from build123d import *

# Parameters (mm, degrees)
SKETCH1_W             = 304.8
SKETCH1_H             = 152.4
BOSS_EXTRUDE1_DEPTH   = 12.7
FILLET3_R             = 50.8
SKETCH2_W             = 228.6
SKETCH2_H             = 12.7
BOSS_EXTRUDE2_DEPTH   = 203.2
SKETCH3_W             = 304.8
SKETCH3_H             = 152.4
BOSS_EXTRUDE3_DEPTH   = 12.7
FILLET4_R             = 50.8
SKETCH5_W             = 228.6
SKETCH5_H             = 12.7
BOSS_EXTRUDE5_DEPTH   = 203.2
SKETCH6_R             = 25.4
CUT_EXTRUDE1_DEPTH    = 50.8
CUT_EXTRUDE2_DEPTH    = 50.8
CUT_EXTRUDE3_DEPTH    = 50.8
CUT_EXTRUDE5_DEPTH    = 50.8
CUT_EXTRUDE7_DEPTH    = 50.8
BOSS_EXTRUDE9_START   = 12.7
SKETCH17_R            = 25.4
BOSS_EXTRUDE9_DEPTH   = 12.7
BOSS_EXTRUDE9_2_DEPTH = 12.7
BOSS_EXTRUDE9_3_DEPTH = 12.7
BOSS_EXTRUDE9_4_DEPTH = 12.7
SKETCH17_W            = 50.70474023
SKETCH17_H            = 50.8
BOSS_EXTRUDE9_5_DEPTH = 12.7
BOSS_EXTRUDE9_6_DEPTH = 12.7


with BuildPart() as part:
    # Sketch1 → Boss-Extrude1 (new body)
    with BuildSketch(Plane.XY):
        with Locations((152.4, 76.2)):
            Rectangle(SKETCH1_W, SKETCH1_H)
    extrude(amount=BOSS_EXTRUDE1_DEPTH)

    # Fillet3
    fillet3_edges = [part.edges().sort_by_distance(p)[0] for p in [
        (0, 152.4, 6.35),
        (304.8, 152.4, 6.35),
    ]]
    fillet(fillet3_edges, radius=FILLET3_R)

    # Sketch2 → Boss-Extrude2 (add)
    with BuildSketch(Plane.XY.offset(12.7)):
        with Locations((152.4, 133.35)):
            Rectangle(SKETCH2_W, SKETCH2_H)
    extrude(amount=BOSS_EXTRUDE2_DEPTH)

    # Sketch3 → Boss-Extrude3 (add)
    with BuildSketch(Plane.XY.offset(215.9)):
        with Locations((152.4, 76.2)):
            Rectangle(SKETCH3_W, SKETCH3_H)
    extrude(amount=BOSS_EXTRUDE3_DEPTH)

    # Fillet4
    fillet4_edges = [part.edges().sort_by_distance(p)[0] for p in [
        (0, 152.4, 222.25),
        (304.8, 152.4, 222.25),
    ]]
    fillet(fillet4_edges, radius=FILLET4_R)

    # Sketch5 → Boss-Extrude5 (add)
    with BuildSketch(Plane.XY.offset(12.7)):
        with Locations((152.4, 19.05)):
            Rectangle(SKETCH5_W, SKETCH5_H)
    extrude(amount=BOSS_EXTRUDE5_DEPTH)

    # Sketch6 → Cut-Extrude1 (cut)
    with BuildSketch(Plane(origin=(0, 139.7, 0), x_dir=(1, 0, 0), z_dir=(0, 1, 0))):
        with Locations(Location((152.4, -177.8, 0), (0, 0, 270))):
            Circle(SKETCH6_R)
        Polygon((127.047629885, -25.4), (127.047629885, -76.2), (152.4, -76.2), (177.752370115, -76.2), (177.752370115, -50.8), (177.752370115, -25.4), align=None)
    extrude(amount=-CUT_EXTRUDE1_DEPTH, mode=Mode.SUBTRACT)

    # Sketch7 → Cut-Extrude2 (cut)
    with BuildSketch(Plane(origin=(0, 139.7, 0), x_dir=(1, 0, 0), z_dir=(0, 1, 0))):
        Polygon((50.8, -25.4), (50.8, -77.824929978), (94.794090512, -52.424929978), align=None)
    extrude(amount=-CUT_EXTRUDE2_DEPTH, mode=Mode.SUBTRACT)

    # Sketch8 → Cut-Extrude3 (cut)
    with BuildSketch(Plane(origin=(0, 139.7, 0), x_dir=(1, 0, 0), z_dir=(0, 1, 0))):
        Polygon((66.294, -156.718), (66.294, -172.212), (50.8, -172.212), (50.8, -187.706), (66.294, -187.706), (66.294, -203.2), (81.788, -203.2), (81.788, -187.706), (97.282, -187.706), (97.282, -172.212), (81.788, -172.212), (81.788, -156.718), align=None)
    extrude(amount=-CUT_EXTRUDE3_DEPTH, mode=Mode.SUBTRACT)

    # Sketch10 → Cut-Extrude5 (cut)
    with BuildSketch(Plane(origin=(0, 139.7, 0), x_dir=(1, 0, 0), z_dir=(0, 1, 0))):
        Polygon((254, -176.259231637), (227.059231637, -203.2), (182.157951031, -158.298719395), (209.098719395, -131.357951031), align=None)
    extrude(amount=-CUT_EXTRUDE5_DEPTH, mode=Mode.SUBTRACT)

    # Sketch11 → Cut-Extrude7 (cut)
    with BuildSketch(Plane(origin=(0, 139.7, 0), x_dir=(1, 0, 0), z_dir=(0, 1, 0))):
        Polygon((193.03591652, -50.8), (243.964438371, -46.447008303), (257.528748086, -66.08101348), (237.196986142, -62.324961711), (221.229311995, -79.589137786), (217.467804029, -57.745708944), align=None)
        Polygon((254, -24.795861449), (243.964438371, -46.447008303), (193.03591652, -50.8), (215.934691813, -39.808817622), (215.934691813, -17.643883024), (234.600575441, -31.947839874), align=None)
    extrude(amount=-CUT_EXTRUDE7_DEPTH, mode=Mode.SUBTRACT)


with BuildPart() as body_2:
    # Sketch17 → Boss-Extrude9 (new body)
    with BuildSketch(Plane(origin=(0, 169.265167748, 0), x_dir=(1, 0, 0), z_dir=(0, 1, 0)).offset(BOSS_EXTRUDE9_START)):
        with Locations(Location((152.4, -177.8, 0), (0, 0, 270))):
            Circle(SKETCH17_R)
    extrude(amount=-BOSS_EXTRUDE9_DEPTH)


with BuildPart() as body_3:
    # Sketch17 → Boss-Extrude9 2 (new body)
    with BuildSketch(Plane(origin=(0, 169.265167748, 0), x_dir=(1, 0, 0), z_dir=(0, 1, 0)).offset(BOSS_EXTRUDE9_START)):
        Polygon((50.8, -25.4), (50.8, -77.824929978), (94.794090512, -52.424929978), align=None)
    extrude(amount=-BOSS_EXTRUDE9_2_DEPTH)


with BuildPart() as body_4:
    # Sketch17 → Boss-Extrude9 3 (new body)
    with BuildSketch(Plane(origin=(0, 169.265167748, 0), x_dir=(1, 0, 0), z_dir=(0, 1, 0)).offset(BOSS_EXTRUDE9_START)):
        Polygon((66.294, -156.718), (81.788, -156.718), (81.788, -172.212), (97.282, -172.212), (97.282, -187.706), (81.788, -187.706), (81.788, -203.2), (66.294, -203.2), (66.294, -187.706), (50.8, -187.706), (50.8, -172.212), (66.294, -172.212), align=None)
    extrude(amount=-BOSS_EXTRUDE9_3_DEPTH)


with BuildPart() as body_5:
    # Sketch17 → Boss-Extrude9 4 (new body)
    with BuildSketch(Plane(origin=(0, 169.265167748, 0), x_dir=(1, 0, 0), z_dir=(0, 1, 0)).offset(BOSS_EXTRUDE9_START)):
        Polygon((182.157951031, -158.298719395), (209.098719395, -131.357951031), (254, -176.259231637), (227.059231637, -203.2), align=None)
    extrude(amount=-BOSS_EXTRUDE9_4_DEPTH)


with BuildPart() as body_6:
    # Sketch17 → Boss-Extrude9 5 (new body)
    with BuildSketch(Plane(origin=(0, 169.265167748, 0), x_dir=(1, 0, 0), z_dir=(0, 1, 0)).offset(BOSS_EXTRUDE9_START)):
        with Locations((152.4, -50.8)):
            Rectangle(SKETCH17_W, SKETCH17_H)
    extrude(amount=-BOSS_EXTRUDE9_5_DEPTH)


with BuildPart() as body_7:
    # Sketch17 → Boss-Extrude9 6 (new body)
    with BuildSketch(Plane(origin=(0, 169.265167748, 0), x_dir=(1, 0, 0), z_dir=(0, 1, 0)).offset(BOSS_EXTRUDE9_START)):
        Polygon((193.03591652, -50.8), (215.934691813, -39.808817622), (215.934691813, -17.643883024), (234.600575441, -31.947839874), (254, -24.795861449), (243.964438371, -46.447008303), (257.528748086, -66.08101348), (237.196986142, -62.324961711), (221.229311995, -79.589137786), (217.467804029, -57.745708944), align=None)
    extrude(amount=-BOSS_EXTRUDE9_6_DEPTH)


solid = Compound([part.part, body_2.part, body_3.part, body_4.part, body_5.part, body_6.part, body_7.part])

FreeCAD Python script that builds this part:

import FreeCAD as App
import Part
import Sketcher
Q = App.Units.Quantity


def edges_at(feature, points):
    """Names of the edges that pass closest to the given points."""
    edges = feature.Shape.Edges
    near = lambda p: min(range(len(edges)), key=lambda i: edges[i].distToShape(Part.Vertex(*p))[0])
    return sorted({f"Edge{near(p) + 1}" for p in points})

doc = App.newDocument("Part")
body = doc.addObject("PartDesign::Body", "Body")

sketch1 = doc.addObject("Sketcher::SketchObject", "Sketch")
body.addObject(sketch1)
sketch1.AttachmentSupport = (doc.XY_Plane, [""])
sketch1.MapMode = "FlatFace"
sketch1.addGeometry([
    Part.LineSegment(App.Vector(0, 152, 0), App.Vector(0, 0, 0)),
    Part.LineSegment(App.Vector(0, 0, 0), App.Vector(305, 0, 0)),
    Part.LineSegment(App.Vector(305, 0, 0), App.Vector(305, 152, 0)),
    Part.LineSegment(App.Vector(305, 152, 0), App.Vector(0, 152, 0)),
], False)
sketch1.addConstraint([
    Sketcher.Constraint("Coincident", 0, 2, 1, 1),
    Sketcher.Constraint("Coincident", 1, 2, 2, 1),
    Sketcher.Constraint("Coincident", 2, 2, 3, 1),
    Sketcher.Constraint("Coincident", 3, 2, 0, 1),
    Sketcher.Constraint("Vertical", 0),
    Sketcher.Constraint("Horizontal", 1),
    Sketcher.Constraint("Vertical", 2),
    Sketcher.Constraint("Horizontal", 3),
    Sketcher.Constraint("Coincident", 0, 2, -1, 1),
    Sketcher.Constraint("DistanceX", 1, 1, 1, 2, Q("12 in")),
    Sketcher.Constraint("DistanceY", 0, 2, 0, 1, Q("6 in")),
])
pad1 = doc.addObject("PartDesign::Pad", "Pad")
body.addObject(pad1)
pad1.Profile = sketch1
pad1.Length = Q("0.5 in")
doc.recompute()

fillet = doc.addObject("PartDesign::Fillet", "Fillet")
body.addObject(fillet)
fillet.Base = (pad1, edges_at(pad1, [(0, 152.4, 6.35), (304.8, 152.4, 6.35)]))
fillet.Radius = Q("2 in")

sketch2 = doc.addObject("Sketcher::SketchObject", "Sketch001")
body.addObject(sketch2)
sketch2.AttachmentSupport = (doc.XY_Plane, [""])
sketch2.MapMode = "FlatFace"
sketch2.AttachmentOffset = App.Placement(App.Vector(0, 0, 0.5 * 25.4), App.Rotation())
sketch2.addGeometry([
    Part.LineSegment(App.Vector(38, 140, 0), App.Vector(38, 127, 0)),
    Part.LineSegment(App.Vector(38, 127, 0), App.Vector(267, 127, 0)),
    Part.LineSegment(App.Vector(267, 127, 0), App.Vector(267, 140, 0)),
    Part.LineSegment(App.Vector(267, 140, 0), App.Vector(38, 140, 0)),
], False)
sketch2.addConstraint([
    Sketcher.Constraint("Coincident", 0, 2, 1, 1),
    Sketcher.Constraint("Coincident", 1, 2, 2, 1),
    Sketcher.Constraint("Coincident", 2, 2, 3, 1),
    Sketcher.Constraint("Coincident", 3, 2, 0, 1),
    Sketcher.Constraint("Vertical", 0),
    Sketcher.Constraint("Horizontal", 1),
    Sketcher.Constraint("Vertical", 2),
    Sketcher.Constraint("Horizontal", 3),
    Sketcher.Constraint("DistanceX", 1, 1, 1, 2, Q("9 in")),
    Sketcher.Constraint("DistanceY", 0, 2, 0, 1, Q("0.5 in")),
    Sketcher.Constraint("DistanceY", -1, 1, 0, 2, Q("5 in")),
    Sketcher.Constraint("DistanceX", -1, 1, 0, 2, Q("1.5 in")),
])
pad2 = doc.addObject("PartDesign::Pad", "Pad001")
body.addObject(pad2)
pad2.Profile = sketch2
pad2.Length = Q("8 in")

sketch3 = doc.addObject("Sketcher::SketchObject", "Sketch002")
body.addObject(sketch3)
sketch3.AttachmentSupport = (doc.XY_Plane, [""])
sketch3.MapMode = "FlatFace"
sketch3.AttachmentOffset = App.Placement(App.Vector(0, 0, 8.5 * 25.4), App.Rotation())
sketch3.addGeometry([
    Part.LineSegment(App.Vector(0, 152, 0), App.Vector(0, 0, 0)),
    Part.LineSegment(App.Vector(0, 0, 0), App.Vector(305, 0, 0)),
    Part.LineSegment(App.Vector(305, 0, 0), App.Vector(305, 152, 0)),
    Part.LineSegment(App.Vector(305, 152, 0), App.Vector(0, 152, 0)),
], False)
sketch3.addConstraint([
    Sketcher.Constraint("Coincident", 0, 2, 1, 1),
    Sketcher.Constraint("Coincident", 1, 2, 2, 1),
    Sketcher.Constraint("Coincident", 2, 2, 3, 1),
    Sketcher.Constraint("Coincident", 3, 2, 0, 1),
    Sketcher.Constraint("Vertical", 0),
    Sketcher.Constraint("Horizontal", 1),
    Sketcher.Constraint("Vertical", 2),
    Sketcher.Constraint("Horizontal", 3),
    Sketcher.Constraint("Coincident", 0, 2, -1, 1),
    Sketcher.Constraint("DistanceX", 1, 1, 1, 2, Q("12 in")),
    Sketcher.Constraint("DistanceY", 0, 2, 0, 1, Q("6 in")),
])
pad3 = doc.addObject("PartDesign::Pad", "Pad002")
body.addObject(pad3)
pad3.Profile = sketch3
pad3.Length = Q("0.5 in")
doc.recompute()

fillet2 = doc.addObject("PartDesign::Fillet", "Fillet001")
body.addObject(fillet2)
fillet2.Base = (pad3, edges_at(pad3, [(0, 152.4, 222.25), (304.8, 152.4, 222.25)]))
fillet2.Radius = Q("2 in")

sketch4 = doc.addObject("Sketcher::SketchObject", "Sketch003")
body.addObject(sketch4)
sketch4.AttachmentSupport = (doc.XY_Plane, [""])
sketch4.MapMode = "FlatFace"
sketch4.AttachmentOffset = App.Placement(App.Vector(0, 0, 0.5 * 25.4), App.Rotation())
sketch4.addGeometry([
    Part.LineSegment(App.Vector(38, 25, 0), App.Vector(38, 13, 0)),
    Part.LineSegment(App.Vector(38, 13, 0), App.Vector(267, 13, 0)),
    Part.LineSegment(App.Vector(267, 13, 0), App.Vector(267, 25, 0)),
    Part.LineSegment(App.Vector(267, 25, 0), App.Vector(38, 25, 0)),
], False)
sketch4.addConstraint([
    Sketcher.Constraint("Coincident", 0, 2, 1, 1),
    Sketcher.Constraint("Coincident", 1, 2, 2, 1),
    Sketcher.Constraint("Coincident", 2, 2, 3, 1),
    Sketcher.Constraint("Coincident", 3, 2, 0, 1),
    Sketcher.Constraint("Vertical", 0),
    Sketcher.Constraint("Horizontal", 1),
    Sketcher.Constraint("Vertical", 2),
    Sketcher.Constraint("Horizontal", 3),
    Sketcher.Constraint("DistanceX", 1, 1, 1, 2, Q("9 in")),
    Sketcher.Constraint("DistanceY", 0, 2, 0, 1, Q("0.5 in")),
    Sketcher.Constraint("DistanceY", -1, 1, 2, 2, Q("1 in")),
    Sketcher.Constraint("DistanceX", -1, 1, 0, 2, Q("1.5 in")),
])
pad4 = doc.addObject("PartDesign::Pad", "Pad003")
body.addObject(pad4)
pad4.Profile = sketch4
pad4.Length = Q("8 in")

sketch5 = doc.addObject("Sketcher::SketchObject", "Sketch004")
body.addObject(sketch5)
sketch5.AttachmentSupport = (doc.XZ_Plane, [""])
sketch5.MapMode = "FlatFace"
sketch5.AttachmentOffset = App.Placement(App.Vector(0, 0, -5.5 * 25.4), App.Rotation())
sketch5.addGeometry([
    Part.Circle(App.Vector(152, 178, 0), App.Vector(0, 0, 1), 25),
    Part.LineSegment(App.Vector(127, 25, 0), App.Vector(127, 76, 0)),
    Part.LineSegment(App.Vector(127, 76, 0), App.Vector(178, 76, 0)),
    Part.LineSegment(App.Vector(178, 76, 0), App.Vector(178, 25, 0)),
    Part.LineSegment(App.Vector(178, 25, 0), App.Vector(127, 25, 0)),
], False)
sketch5.addConstraint([
    Sketcher.Constraint("Coincident", 1, 2, 2, 1),
    Sketcher.Constraint("Coincident", 2, 2, 3, 1),
    Sketcher.Constraint("Coincident", 3, 2, 4, 1),
    Sketcher.Constraint("Coincident", 4, 2, 1, 1),
    Sketcher.Constraint("Vertical", 1),
    Sketcher.Constraint("Horizontal", 2),
    Sketcher.Constraint("Vertical", 3),
    Sketcher.Constraint("Horizontal", 4),
    Sketcher.Constraint("Diameter", 0, Q("2 in")),
    Sketcher.Constraint("DistanceY", 1, 1, 1, 2, Q("2 in")),
    Sketcher.Constraint("DistanceX", -1, 1, 0, 3, Q("6 in")),
    Sketcher.Constraint("DistanceY", -1, 1, 0, 3, Q("7 in")),
    Sketcher.Constraint("DistanceY", -1, 1, 1, 2, Q("3 in")),
    Sketcher.Constraint("DistanceX", 2, 1, 2, 2, Q("50.70474 mm")),
    Sketcher.Constraint("DistanceX", -1, 1, 1, 2, Q("127.04763 mm")),
])
pocket1 = doc.addObject("PartDesign::Pocket", "Pocket")
body.addObject(pocket1)
pocket1.Profile = sketch5
pocket1.Length = Q("2 in")
pocket1.Reversed = True

sketch6 = doc.addObject("Sketcher::SketchObject", "Sketch005")
body.addObject(sketch6)
sketch6.AttachmentSupport = (doc.XZ_Plane, [""])
sketch6.MapMode = "FlatFace"
sketch6.AttachmentOffset = App.Placement(App.Vector(0, 0, -5.5 * 25.4), App.Rotation())
sketch6.addGeometry([
    Part.LineSegment(App.Vector(51, 25, 0), App.Vector(51, 78, 0)),
    Part.LineSegment(App.Vector(51, 78, 0), App.Vector(95, 52, 0)),
    Part.LineSegment(App.Vector(95, 52, 0), App.Vector(51, 25, 0)),
], False)
sketch6.addConstraint([
    Sketcher.Constraint("Coincident", 0, 2, 1, 1),
    Sketcher.Constraint("Coincident", 1, 2, 2, 1),
    Sketcher.Constraint("Coincident", 2, 2, 0, 1),
    Sketcher.Constraint("Vertical", 0),
    Sketcher.Constraint("Distance", 1, Q("2 in")),
    Sketcher.Constraint("DistanceX", -1, 1, 0, 2, Q("2 in")),
    Sketcher.Constraint("DistanceY", -1, 1, 2, 2, Q("1 in")),
    Sketcher.Constraint("Angle", 1, Q("-30 deg")),
    Sketcher.Constraint("DistanceY", 0, 1, 0, 2, Q("52.42493 mm")),
])
pocket2 = doc.addObject("PartDesign::Pocket", "Pocket001")
body.addObject(pocket2)
pocket2.Profile = sketch6
pocket2.Length = Q("2 in")
pocket2.Reversed = True

sketch7 = doc.addObject("Sketcher::SketchObject", "Sketch006")
body.addObject(sketch7)
sketch7.AttachmentSupport = (doc.XZ_Plane, [""])
sketch7.MapMode = "FlatFace"
sketch7.AttachmentOffset = App.Placement(App.Vector(0, 0, -5.5 * 25.4), App.Rotation())
sketch7.addGeometry([
    Part.LineSegment(App.Vector(66, 157, 0), App.Vector(66, 172, 0)),
    Part.LineSegment(App.Vector(66, 172, 0), App.Vector(51, 172, 0)),
    Part.LineSegment(App.Vector(51, 172, 0), App.Vector(51, 188, 0)),
    Part.LineSegment(App.Vector(51, 188, 0), App.Vector(66, 188, 0)),
    Part.LineSegment(App.Vector(66, 188, 0), App.Vector(66, 203, 0)),
    Part.LineSegment(App.Vector(66, 203, 0), App.Vector(82, 203, 0)),
    Part.LineSegment(App.Vector(82, 203, 0), App.Vector(82, 188, 0)),
    Part.LineSegment(App.Vector(82, 188, 0), App.Vector(97, 188, 0)),
    Part.LineSegment(App.Vector(97, 188, 0), App.Vector(97, 172, 0)),
    Part.LineSegment(App.Vector(97, 172, 0), App.Vector(82, 172, 0)),
    Part.LineSegment(App.Vector(82, 172, 0), App.Vector(82, 157, 0)),
    Part.LineSegment(App.Vector(82, 157, 0), App.Vector(66, 157, 0)),
], False)
sketch7.addConstraint([
    Sketcher.Constraint("Coincident", 0, 2, 1, 1),
    Sketcher.Constraint("Coincident", 1, 2, 2, 1),
    Sketcher.Constraint("Coincident", 2, 2, 3, 1),
    Sketcher.Constraint("Coincident", 3, 2, 4, 1),
    Sketcher.Constraint("Coincident", 4, 2, 5, 1),
    Sketcher.Constraint("Coincident", 5, 2, 6, 1),
    Sketcher.Constraint("Coincident", 6, 2, 7, 1),
    Sketcher.Constraint("Coincident", 7, 2, 8, 1),
    Sketcher.Constraint("Coincident", 8, 2, 9, 1),
    Sketcher.Constraint("Coincident", 9, 2, 10, 1),
    Sketcher.Constraint("Coincident", 10, 2, 11, 1),
    Sketcher.Constraint("Coincident", 11, 2, 0, 1),
    Sketcher.Constraint("Vertical", 0),
    Sketcher.Constraint("Horizontal", 1),
    Sketcher.Constraint("Vertical", 2),
    Sketcher.Constraint("Horizontal", 3),
    Sketcher.Constraint("Vertical", 4),
    Sketcher.Constraint("Horizontal", 5),
    Sketcher.Constraint("Vertical", 6),
    Sketcher.Constraint("Horizontal", 7),
    Sketcher.Constraint("Vertical", 8),
    Sketcher.Constraint("Horizontal", 9),
    Sketcher.Constraint("Vertical", 10),
    Sketcher.Constraint("Horizontal", 11),
    Sketcher.Constraint("Horizontal", 3, 2, 6, 2),
    Sketcher.Constraint("Horizontal", 1, 2, 8, 2),
    Sketcher.Constraint("Vertical", 0, 2, 3, 2),
    Sketcher.Constraint("Vertical", 6, 2, 9, 2),
    Sketcher.Constraint("Equal", 3, 5),
    Sketcher.Constraint("Equal", 5, 7),
    Sketcher.Constraint("Equal", 11, 0),
    Sketcher.Constraint("Equal", 0, 2),
    Sketcher.Constraint("Equal", 2, 4),
    Sketcher.Constraint("DistanceX", -1, 1, 1, 2, Q("2 in")),
    Sketcher.Constraint("DistanceY", -1, 1, 4, 2, Q("8 in")),
    Sketcher.Constraint("DistanceX", 1, 2, 1, 1, Q("0.61 in")),
])
pocket3 = doc.addObject("PartDesign::Pocket", "Pocket002")
body.addObject(pocket3)
pocket3.Profile = sketch7
pocket3.Length = Q("2 in")
pocket3.Reversed = True

sketch8 = doc.addObject("Sketcher::SketchObject", "Sketch007")
body.addObject(sketch8)
sketch8.AttachmentSupport = (doc.XZ_Plane, [""])
sketch8.MapMode = "FlatFace"
sketch8.AttachmentOffset = App.Placement(App.Vector(0, 0, -5.5 * 25.4), App.Rotation())
sketch8.addGeometry([
    Part.LineSegment(App.Vector(227, 203, 0), App.Vector(254, 176, 0)),
    Part.LineSegment(App.Vector(254, 176, 0), App.Vector(209, 131, 0)),
    Part.LineSegment(App.Vector(209, 131, 0), App.Vector(182, 158, 0)),
    Part.LineSegment(App.Vector(182, 158, 0), App.Vector(227, 203, 0)),
], False)
sketch8.addConstraint([
    Sketcher.Constraint("Coincident", 0, 2, 1, 1),
    Sketcher.Constraint("Coincident", 1, 2, 2, 1),
    Sketcher.Constraint("Coincident", 2, 2, 3, 1),
    Sketcher.Constraint("Coincident", 3, 2, 0, 1),
    Sketcher.Constraint("Perpendicular", 0, 1),
    Sketcher.Constraint("Perpendicular", 1, 2),
    Sketcher.Constraint("Perpendicular", 2, 3),
    Sketcher.Constraint("DistanceX", -1, 1, 0, 2, Q("10 in")),
    Sketcher.Constraint("DistanceY", -1, 1, 3, 2, Q("8 in")),
    Sketcher.Constraint("Angle", 0, Q("-45 deg")),
    Sketcher.Constraint("Distance", 0, Q("1.5 in")),
    Sketcher.Constraint("Distance", 1, Q("2.5 in")),
])
pocket4 = doc.addObject("PartDesign::Pocket", "Pocket003")
body.addObject(pocket4)
pocket4.Profile = sketch8
pocket4.Length = Q("2 in")
pocket4.Reversed = True

sketch9 = doc.addObject("Sketcher::SketchObject", "Sketch008")
body.addObject(sketch9)
sketch9.AttachmentSupport = (doc.XZ_Plane, [""])
sketch9.MapMode = "FlatFace"
sketch9.AttachmentOffset = App.Placement(App.Vector(0, 0, -5.5 * 25.4), App.Rotation())
sketch9.addGeometry([
    Part.LineSegment(App.Vector(258, 66, 0), App.Vector(244, 46, 0)),
    Part.LineSegment(App.Vector(244, 46, 0), App.Vector(254, 25, 0)),
    Part.LineSegment(App.Vector(254, 25, 0), App.Vector(235, 32, 0)),
    Part.LineSegment(App.Vector(235, 32, 0), App.Vector(216, 18, 0)),
    Part.LineSegment(App.Vector(216, 18, 0), App.Vector(216, 40, 0)),
    Part.LineSegment(App.Vector(216, 40, 0), App.Vector(193, 51, 0)),
    Part.LineSegment(App.Vector(193, 51, 0), App.Vector(217, 58, 0)),
    Part.LineSegment(App.Vector(217, 58, 0), App.Vector(221, 80, 0)),
    Part.LineSegment(App.Vector(221, 80, 0), App.Vector(237, 62, 0)),
    Part.LineSegment(App.Vector(237, 62, 0), App.Vector(258, 66, 0)),
], False)
sketch9.addConstraint([
    Sketcher.Constraint("Coincident", 0, 2, 1, 1),
    Sketcher.Constraint("Coincident", 1, 2, 2, 1),
    Sketcher.Constraint("Coincident", 2, 2, 3, 1),
    Sketcher.Constraint("Coincident", 3, 2, 4, 1),
    Sketcher.Constraint("Coincident", 4, 2, 5, 1),
    Sketcher.Constraint("Coincident", 5, 2, 6, 1),
    Sketcher.Constraint("Coincident", 6, 2, 7, 1),
    Sketcher.Constraint("Coincident", 7, 2, 8, 1),
    Sketcher.Constraint("Coincident", 8, 2, 9, 1),
    Sketcher.Constraint("Coincident", 9, 2, 0, 1),
    Sketcher.Constraint("Vertical", 4),
    Sketcher.Constraint("Equal", 0, 1),
    Sketcher.Constraint("Equal", 5, 6),
    Sketcher.Constraint("Equal", 3, 8),
    Sketcher.Constraint("Equal", 2, 9),
    Sketcher.Constraint("Distance", 5, Q("1 in")),
    Sketcher.Constraint("DistanceX", -1, 1, 1, 2, Q("10 in")),
    Sketcher.Constraint("DistanceY", -1, 1, 5, 2, Q("2 in")),
    Sketcher.Constraint("DistanceY", 0, 2, 6, 2, Q("11.298701 mm")),
    Sketcher.Constraint("DistanceY", 4, 1, 4, 2, Q("22.164935 mm")),
    Sketcher.Constraint("DistanceX", -1, 1, 0, 2, Q("243.964438 mm")),
    Sketcher.Constraint("DistanceY", -1, 1, 0, 2, Q("46.447008 mm")),
    Sketcher.Constraint("DistanceY", -1, 1, 1, 2, Q("24.795861 mm")),
    Sketcher.Constraint("DistanceY", -1, 1, 2, 2, Q("31.94784 mm")),
    Sketcher.Constraint("DistanceX", -1, 1, 3, 2, Q("215.934692 mm")),
    Sketcher.Constraint("DistanceX", -1, 1, 7, 2, Q("221.229312 mm")),
    Sketcher.Constraint("DistanceY", -1, 1, 8, 2, Q("62.324962 mm")),
    Sketcher.Constraint("DistanceX", -1, 1, 9, 2, Q("257.528748 mm")),
    Sketcher.Constraint("DistanceY", 3, 2, 1, 2, Q("7.151978 mm")),
    Sketcher.Constraint("DistanceX", 5, 2, 2, 2, Q("41.564659 mm")),
])
pocket5 = doc.addObject("PartDesign::Pocket", "Pocket004")
body.addObject(pocket5)
pocket5.Profile = sketch9
pocket5.Length = Q("2 in")
pocket5.Reversed = True
body2 = doc.addObject("PartDesign::Body", "Body001")

sketch10 = doc.addObject("Sketcher::SketchObject", "Sketch009")
body2.addObject(sketch10)
sketch10.AttachmentSupport = (doc.getObject("XZ_Plane001"), [""])
sketch10.MapMode = "FlatFace"
sketch10.AttachmentOffset = App.Placement(App.Vector(0, 0, -181.965168), App.Rotation())
sketch10.addGeometry(Part.Circle(App.Vector(152, 178, 0), App.Vector(0, 0, 1), 25), False)
sketch10.addConstraint([
    Sketcher.Constraint("Diameter", 0, Q("2 in")),
    Sketcher.Constraint("DistanceX", -1, 1, 0, 3, Q("6 in")),
    Sketcher.Constraint("DistanceY", -1, 1, 0, 3, Q("7 in")),
])
pad5 = doc.addObject("PartDesign::Pad", "Pad004")
body2.addObject(pad5)
pad5.Profile = sketch10
pad5.Length = Q("0.5 in")
body3 = doc.addObject("PartDesign::Body", "Body002")

sketch11 = doc.addObject("Sketcher::SketchObject", "Sketch010")
body3.addObject(sketch11)
sketch11.AttachmentSupport = (doc.getObject("XZ_Plane002"), [""])
sketch11.MapMode = "FlatFace"
sketch11.AttachmentOffset = App.Placement(App.Vector(0, 0, -181.965168), App.Rotation())
sketch11.addGeometry([
    Part.LineSegment(App.Vector(51, 25, 0), App.Vector(51, 78, 0)),
    Part.LineSegment(App.Vector(51, 78, 0), App.Vector(95, 52, 0)),
    Part.LineSegment(App.Vector(95, 52, 0), App.Vector(51, 25, 0)),
], False)
sketch11.addConstraint([
    Sketcher.Constraint("Coincident", 0, 2, 1, 1),
    Sketcher.Constraint("Coincident", 1, 2, 2, 1),
    Sketcher.Constraint("Coincident", 2, 2, 0, 1),
    Sketcher.Constraint("Vertical", 0),
    Sketcher.Constraint("Distance", 1, Q("2 in")),
    Sketcher.Constraint("DistanceX", -1, 1, 0, 2, Q("2 in")),
    Sketcher.Constraint("DistanceY", -1, 1, 2, 2, Q("1 in")),
    Sketcher.Constraint("Angle", 1, Q("-30 deg")),
    Sketcher.Constraint("DistanceY", 0, 1, 0, 2, Q("52.42493 mm")),
])
pad6 = doc.addObject("PartDesign::Pad", "Pad005")
body3.addObject(pad6)
pad6.Profile = sketch11
pad6.Length = Q("0.5 in")
body4 = doc.addObject("PartDesign::Body", "Body003")

sketch12 = doc.addObject("Sketcher::SketchObject", "Sketch011")
body4.addObject(sketch12)
sketch12.AttachmentSupport = (doc.getObject("XZ_Plane003"), [""])
sketch12.MapMode = "FlatFace"
sketch12.AttachmentOffset = App.Placement(App.Vector(0, 0, -181.965168), App.Rotation())
sketch12.addGeometry([
    Part.LineSegment(App.Vector(82, 157, 0), App.Vector(66, 157, 0)),
    Part.LineSegment(App.Vector(66, 157, 0), App.Vector(66, 172, 0)),
    Part.LineSegment(App.Vector(66, 172, 0), App.Vector(51, 172, 0)),
    Part.LineSegment(App.Vector(51, 172, 0), App.Vector(51, 188, 0)),
    Part.LineSegment(App.Vector(51, 188, 0), App.Vector(66, 188, 0)),
    Part.LineSegment(App.Vector(66, 188, 0), App.Vector(66, 203, 0)),
    Part.LineSegment(App.Vector(66, 203, 0), App.Vector(82, 203, 0)),
    Part.LineSegment(App.Vector(82, 203, 0), App.Vector(82, 188, 0)),
    Part.LineSegment(App.Vector(82, 188, 0), App.Vector(97, 188, 0)),
    Part.LineSegment(App.Vector(97, 188, 0), App.Vector(97, 172, 0)),
    Part.LineSegment(App.Vector(97, 172, 0), App.Vector(82, 172, 0)),
    Part.LineSegment(App.Vector(82, 172, 0), App.Vector(82, 157, 0)),
], False)
sketch12.addConstraint([
    Sketcher.Constraint("Coincident", 0, 2, 1, 1),
    Sketcher.Constraint("Coincident", 1, 2, 2, 1),
    Sketcher.Constraint("Coincident", 2, 2, 3, 1),
    Sketcher.Constraint("Coincident", 3, 2, 4, 1),
    Sketcher.Constraint("Coincident", 4, 2, 5, 1),
    Sketcher.Constraint("Coincident", 5, 2, 6, 1),
    Sketcher.Constraint("Coincident", 6, 2, 7, 1),
    Sketcher.Constraint("Coincident", 7, 2, 8, 1),
    Sketcher.Constraint("Coincident", 8, 2, 9, 1),
    Sketcher.Constraint("Coincident", 9, 2, 10, 1),
    Sketcher.Constraint("Coincident", 10, 2, 11, 1),
    Sketcher.Constraint("Coincident", 11, 2, 0, 1),
    Sketcher.Constraint("Horizontal", 0),
    Sketcher.Constraint("Vertical", 1),
    Sketcher.Constraint("Horizontal", 2),
    Sketcher.Constraint("Vertical", 3),
    Sketcher.Constraint("Horizontal", 4),
    Sketcher.Constraint("Vertical", 5),
    Sketcher.Constraint("Horizontal", 6),
    Sketcher.Constraint("Vertical", 7),
    Sketcher.Constraint("Horizontal", 8),
    Sketcher.Constraint("Vertical", 9),
    Sketcher.Constraint("Horizontal", 10),
    Sketcher.Constraint("Vertical", 11),
    Sketcher.Constraint("Horizontal", 4, 2, 7, 2),
    Sketcher.Constraint("Horizontal", 2, 2, 9, 2),
    Sketcher.Constraint("Vertical", 1, 2, 4, 2),
    Sketcher.Constraint("Vertical", 7, 2, 10, 2),
    Sketcher.Constraint("Equal", 0, 2),
    Sketcher.Constraint("Equal", 6, 8),
    Sketcher.Constraint("Equal", 10, 1),
    Sketcher.Constraint("Equal", 1, 3),
    Sketcher.Constraint("Equal", 3, 5),
    Sketcher.Constraint("DistanceX", -1, 1, 2, 2, Q("2 in")),
    Sketcher.Constraint("DistanceY", -1, 1, 5, 2, Q("8 in")),
    Sketcher.Constraint("DistanceX", 0, 2, 0, 1, Q("0.61 in")),
])
pad7 = doc.addObject("PartDesign::Pad", "Pad006")
body4.addObject(pad7)
pad7.Profile = sketch12
pad7.Length = Q("0.5 in")
body5 = doc.addObject("PartDesign::Body", "Body004")

sketch13 = doc.addObject("Sketcher::SketchObject", "Sketch012")
body5.addObject(sketch13)
sketch13.AttachmentSupport = (doc.getObject("XZ_Plane004"), [""])
sketch13.MapMode = "FlatFace"
sketch13.AttachmentOffset = App.Placement(App.Vector(0, 0, -181.965168), App.Rotation())
sketch13.addGeometry([
    Part.LineSegment(App.Vector(209, 131, 0), App.Vector(182, 158, 0)),
    Part.LineSegment(App.Vector(182, 158, 0), App.Vector(227, 203, 0)),
    Part.LineSegment(App.Vector(227, 203, 0), App.Vector(254, 176, 0)),
    Part.LineSegment(App.Vector(254, 176, 0), App.Vector(209, 131, 0)),
], False)
sketch13.addConstraint([
    Sketcher.Constraint("Coincident", 0, 2, 1, 1),
    Sketcher.Constraint("Coincident", 1, 2, 2, 1),
    Sketcher.Constraint("Coincident", 2, 2, 3, 1),
    Sketcher.Constraint("Coincident", 3, 2, 0, 1),
    Sketcher.Constraint("Perpendicular", 0, 1),
    Sketcher.Constraint("Perpendicular", 1, 2),
    Sketcher.Constraint("Perpendicular", 2, 3),
    Sketcher.Constraint("DistanceY", -1, 1, 1, 2, Q("8 in")),
    Sketcher.Constraint("DistanceX", -1, 1, 2, 2, Q("10 in")),
    Sketcher.Constraint("Angle", 0, Q("135 deg")),
    Sketcher.Constraint("Distance", 0, Q("1.5 in")),
    Sketcher.Constraint("Distance", 1, Q("2.5 in")),
])
pad8 = doc.addObject("PartDesign::Pad", "Pad007")
body5.addObject(pad8)
pad8.Profile = sketch13
pad8.Length = Q("0.5 in")
body6 = doc.addObject("PartDesign::Body", "Body005")

sketch14 = doc.addObject("Sketcher::SketchObject", "Sketch013")
body6.addObject(sketch14)
sketch14.AttachmentSupport = (doc.getObject("XZ_Plane005"), [""])
sketch14.MapMode = "FlatFace"
sketch14.AttachmentOffset = App.Placement(App.Vector(0, 0, -181.965168), App.Rotation())
sketch14.addGeometry([
    Part.LineSegment(App.Vector(127, 25, 0), App.Vector(127, 76, 0)),
    Part.LineSegment(App.Vector(127, 76, 0), App.Vector(178, 76, 0)),
    Part.LineSegment(App.Vector(178, 76, 0), App.Vector(178, 25, 0)),
    Part.LineSegment(App.Vector(178, 25, 0), App.Vector(127, 25, 0)),
], False)
sketch14.addConstraint([
    Sketcher.Constraint("Coincident", 0, 2, 1, 1),
    Sketcher.Constraint("Coincident", 1, 2, 2, 1),
    Sketcher.Constraint("Coincident", 2, 2, 3, 1),
    Sketcher.Constraint("Coincident", 3, 2, 0, 1),
    Sketcher.Constraint("Vertical", 0),
    Sketcher.Constraint("Horizontal", 1),
    Sketcher.Constraint("Vertical", 2),
    Sketcher.Constraint("Horizontal", 3),
    Sketcher.Constraint("DistanceY", 0, 1, 0, 2, Q("2 in")),
    Sketcher.Constraint("DistanceY", -1, 1, 0, 2, Q("3 in")),
    Sketcher.Constraint("DistanceX", 1, 1, 1, 2, Q("50.70474 mm")),
    Sketcher.Constraint("DistanceX", -1, 1, 0, 2, Q("127.04763 mm")),
])
pad9 = doc.addObject("PartDesign::Pad", "Pad008")
body6.addObject(pad9)
pad9.Profile = sketch14
pad9.Length = Q("0.5 in")
body7 = doc.addObject("PartDesign::Body", "Body006")

sketch15 = doc.addObject("Sketcher::SketchObject", "Sketch014")
body7.addObject(sketch15)
sketch15.AttachmentSupport = (doc.getObject("XZ_Plane006"), [""])
sketch15.MapMode = "FlatFace"
sketch15.AttachmentOffset = App.Placement(App.Vector(0, 0, -181.965168), App.Rotation())
sketch15.addGeometry([
    Part.LineSegment(App.Vector(216, 40, 0), App.Vector(193, 51, 0)),
    Part.LineSegment(App.Vector(193, 51, 0), App.Vector(217, 58, 0)),
    Part.LineSegment(App.Vector(217, 58, 0), App.Vector(221, 80, 0)),
    Part.LineSegment(App.Vector(221, 80, 0), App.Vector(237, 62, 0)),
    Part.LineSegment(App.Vector(237, 62, 0), App.Vector(258, 66, 0)),
    Part.LineSegment(App.Vector(258, 66, 0), App.Vector(244, 46, 0)),
    Part.LineSegment(App.Vector(244, 46, 0), App.Vector(254, 25, 0)),
    Part.LineSegment(App.Vector(254, 25, 0), App.Vector(235, 32, 0)),
    Part.LineSegment(App.Vector(235, 32, 0), App.Vector(216, 18, 0)),
    Part.LineSegment(App.Vector(216, 18, 0), App.Vector(216, 40, 0)),
], False)
sketch15.addConstraint([
    Sketcher.Constraint("Coincident", 0, 2, 1, 1),
    Sketcher.Constraint("Coincident", 1, 2, 2, 1),
    Sketcher.Constraint("Coincident", 2, 2, 3, 1),
    Sketcher.Constraint("Coincident", 3, 2, 4, 1),
    Sketcher.Constraint("Coincident", 4, 2, 5, 1),
    Sketcher.Constraint("Coincident", 5, 2, 6, 1),
    Sketcher.Constraint("Coincident", 6, 2, 7, 1),
    Sketcher.Constraint("Coincident", 7, 2, 8, 1),
    Sketcher.Constraint("Coincident", 8, 2, 9, 1),
    Sketcher.Constraint("Coincident", 9, 2, 0, 1),
    Sketcher.Constraint("Vertical", 9),
    Sketcher.Constraint("Equal", 0, 1),
    Sketcher.Constraint("Equal", 5, 6),
    Sketcher.Constraint("Equal", 4, 7),
    Sketcher.Constraint("Equal", 3, 8),
    Sketcher.Constraint("Distance", 0, Q("1 in")),
    Sketcher.Constraint("DistanceY", -1, 1, 0, 2, Q("2 in")),
    Sketcher.Constraint("DistanceX", -1, 1, 6, 2, Q("10 in")),
    Sketcher.Constraint("DistanceY", 5, 2, 1, 2, Q("11.298701 mm")),
    Sketcher.Constraint("DistanceY", 6, 2, 3, 2, Q("37.5291 mm")),
    Sketcher.Constraint("DistanceY", 9, 1, 9, 2, Q("22.164935 mm")),
    Sketcher.Constraint("DistanceY", -1, 1, 1, 2, Q("57.745709 mm")),
    Sketcher.Constraint("DistanceX", -1, 1, 2, 2, Q("221.229312 mm")),
    Sketcher.Constraint("DistanceY", -1, 1, 3, 2, Q("62.324962 mm")),
    Sketcher.Constraint("DistanceX", -1, 1, 4, 2, Q("257.528748 mm")),
    Sketcher.Constraint("DistanceX", -1, 1, 5, 2, Q("243.964438 mm")),
    Sketcher.Constraint("DistanceY", -1, 1, 7, 2, Q("31.94784 mm")),
    Sketcher.Constraint("DistanceX", -1, 1, 8, 2, Q("215.934692 mm")),
    Sketcher.Constraint("DistanceY", 1, 2, 2, 2, Q("21.843429 mm")),
    Sketcher.Constraint("DistanceX", 0, 2, 3, 2, Q("44.16107 mm")),
])
pad10 = doc.addObject("PartDesign::Pad", "Pad009")
body7.addObject(pad10)
pad10.Profile = sketch15
pad10.Length = Q("0.5 in")

doc.recompute()
